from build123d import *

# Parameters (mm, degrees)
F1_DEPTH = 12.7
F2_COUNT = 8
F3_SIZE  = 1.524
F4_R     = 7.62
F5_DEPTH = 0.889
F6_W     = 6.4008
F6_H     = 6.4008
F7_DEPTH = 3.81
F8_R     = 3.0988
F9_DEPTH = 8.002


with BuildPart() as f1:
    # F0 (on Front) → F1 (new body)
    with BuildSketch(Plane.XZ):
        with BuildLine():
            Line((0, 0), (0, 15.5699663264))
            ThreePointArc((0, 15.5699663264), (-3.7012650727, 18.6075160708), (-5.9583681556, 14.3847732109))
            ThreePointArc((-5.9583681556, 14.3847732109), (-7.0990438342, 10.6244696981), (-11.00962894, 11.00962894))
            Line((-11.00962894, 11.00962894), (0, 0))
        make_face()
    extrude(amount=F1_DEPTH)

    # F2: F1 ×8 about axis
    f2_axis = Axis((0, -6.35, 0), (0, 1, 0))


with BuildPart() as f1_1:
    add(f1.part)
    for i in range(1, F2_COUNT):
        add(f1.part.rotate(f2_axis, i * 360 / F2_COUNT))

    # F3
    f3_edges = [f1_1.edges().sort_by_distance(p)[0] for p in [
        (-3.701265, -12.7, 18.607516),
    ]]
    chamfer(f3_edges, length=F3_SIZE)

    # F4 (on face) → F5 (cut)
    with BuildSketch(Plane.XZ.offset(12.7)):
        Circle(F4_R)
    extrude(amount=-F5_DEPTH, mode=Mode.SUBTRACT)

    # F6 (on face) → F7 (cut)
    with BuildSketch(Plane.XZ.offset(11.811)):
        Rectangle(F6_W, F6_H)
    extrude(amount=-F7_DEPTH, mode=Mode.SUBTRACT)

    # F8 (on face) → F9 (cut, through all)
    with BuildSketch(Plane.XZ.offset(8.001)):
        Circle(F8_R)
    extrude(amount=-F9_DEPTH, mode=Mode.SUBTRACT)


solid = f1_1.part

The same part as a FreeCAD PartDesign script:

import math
import FreeCAD as App
import Part
import Sketcher
from FreeCAD import Vector
Q = App.Units.Quantity


def edges_at(feature, points):
    """Names of the edges that pass closest to the given points."""
    edges = feature.Shape.Edges
    near = lambda p: min(range(len(edges)), key=lambda i: edges[i].distToShape(Part.Vertex(*p))[0])
    return sorted({f"Edge{near(p) + 1}" for p in points})


def add_polygon(sketch, points):
    """Adds a closed chain of lines whose ends are joined by coincident constraints."""
    first, n = sketch.GeometryCount, len(points)
    for a, b in zip(points, points[1:] + points[:1]):
        sketch.addGeometry(Part.LineSegment(App.Vector(*a, 0), App.Vector(*b, 0)), False)
    for i in range(n):
        sketch.addConstraint(Sketcher.Constraint("Coincident", first + i, 2, first + (i + 1) % n, 1))

doc = App.newDocument("Part")
body = doc.addObject("PartDesign::Body", "Body")

# Sketch on XZ plane
sketch1 = doc.addObject("Sketcher::SketchObject", "Sketch")
body.addObject(sketch1)
sketch1.AttachmentSupport = (doc.XZ_Plane, [""])
sketch1.MapMode = "FlatFace"
sketch1.addGeometry([
    Part.LineSegment(Vector(0, 0, 0), Vector(0, 15.569966, 0)),
    Part.ArcOfCircle(Part.Circle(Vector(-3.097059, 15.569966, 0), Vector(0, 0, 1), 3.097059), math.radians(0), math.radians(202.5)),
    Part.ArcOfCircle(Part.Circle(Vector(-8.819677, 13.19958, 0), Vector(0, 0, 1), 3.097059), math.radians(-135.000004), math.radians(22.5)),
    Part.LineSegment(Vector(-11.009629, 11.009629, 0), Vector(0, 0, 0)),
], False)
sketch1.addConstraint([
    Sketcher.Constraint("Tangent", 0, 2, 1, 1),
    Sketcher.Constraint("Tangent", 1, 2, 2, 2),
    Sketcher.Constraint("Tangent", 2, 1, 3, 1),
    Sketcher.Constraint("Coincident", 3, 2, 0, 1),
    Sketcher.Constraint("Vertical", 0),
    Sketcher.Constraint("Coincident", 3, 2, -1, 1),
    Sketcher.Constraint("Equal", 1, 2),
    Sketcher.Constraint("Angle", 3, Q("-45 deg")),
    Sketcher.Constraint("Radius", 1, Q("3.097059 mm")),
    Sketcher.Constraint("DistanceX", 2, 3, 1, 3, Q("0.2252999 in")),
])
pad1 = doc.addObject("PartDesign::Pad", "Pad")
body.addObject(pad1)
pad1.Profile = sketch1
pad1.Length = Q("0.5 in")
body2 = doc.addObject("PartDesign::Body", "Body001")
doc.recompute()

body2.BaseFeature = body
doc.recompute()

body3 = doc.addObject("PartDesign::Body", "Body002")
body3.BaseFeature = body
body3.Placement = App.Placement(Vector(0, 0, 0), App.Rotation(Vector(0, 1, 0), 45))
boolean = doc.addObject("PartDesign::Boolean", "Boolean")
body2.addObject(boolean)
boolean.Type = "Fuse"
boolean.addObjects([body3])
doc.recompute()

body4 = doc.addObject("PartDesign::Body", "Body003")
body4.BaseFeature = body
body4.Placement = App.Placement(Vector(0, 0, 0), App.Rotation(Vector(0, 1, 0), 90))
boolean2 = doc.addObject("PartDesign::Boolean", "Boolean001")
body2.addObject(boolean2)
boolean2.Type = "Fuse"
boolean2.addObjects([body4])
doc.recompute()

body5 = doc.addObject("PartDesign::Body", "Body004")
body5.BaseFeature = body
body5.Placement = App.Placement(Vector(0, 0, 0), App.Rotation(Vector(0, 1, 0), 135))
boolean3 = doc.addObject("PartDesign::Boolean", "Boolean002")
body2.addObject(boolean3)
boolean3.Type = "Fuse"
boolean3.addObjects([body5])
doc.recompute()

body6 = doc.addObject("PartDesign::Body", "Body005")
body6.BaseFeature = body
body6.Placement = App.Placement(Vector(0, 0, 0), App.Rotation(Vector(0, 1, 0), 180))
boolean4 = doc.addObject("PartDesign::Boolean", "Boolean003")
body2.addObject(boolean4)
boolean4.Type = "Fuse"
boolean4.addObjects([body6])
doc.recompute()

body7 = doc.addObject("PartDesign::Body", "Body006")
body7.BaseFeature = body
body7.Placement = App.Placement(Vector(0, 0, 0), App.Rotation(Vector(0, 1, 0), 225))
boolean5 = doc.addObject("PartDesign::Boolean", "Boolean004")
body2.addObject(boolean5)
boolean5.Type = "Fuse"
boolean5.addObjects([body7])
doc.recompute()

body8 = doc.addObject("PartDesign::Body", "Body007")
body8.BaseFeature = body
body8.Placement = App.Placement(Vector(0, 0, 0), App.Rotation(Vector(0, 1, 0), 270))
boolean6 = doc.addObject("PartDesign::Boolean", "Boolean005")
body2.addObject(boolean6)
boolean6.Type = "Fuse"
boolean6.addObjects([body8])
doc.recompute()

body.Placement = App.Placement(Vector(0, 0, 0), App.Rotation(Vector(0, 1, 0), 315))
boolean7 = doc.addObject("PartDesign::Boolean", "Boolean006")
body2.addObject(boolean7)
boolean7.Type = "Fuse"
boolean7.addObjects([body])
doc.recompute()

chamfer = doc.addObject("PartDesign::Chamfer", "Chamfer")
body2.addObject(chamfer)
chamfer.Base = (boolean7, edges_at(boolean7, [(-3.701, -12.7, 18.608)]))
chamfer.Size = Q("0.06 in")

# Sketch on XZ plane
sketch2 = doc.addObject("Sketcher::SketchObject", "Sketch001")
body2.addObject(sketch2)
sketch2.AttachmentSupport = (doc.getObject("XZ_Plane001"), [""])
sketch2.MapMode = "FlatFace"
sketch2.AttachmentOffset = App.Placement(Vector(0, 0, 0.5 * 25.4), App.Rotation())
sketch2.addGeometry(Part.Circle(Vector(0, 0, 0), Vector(0, 0, 1), 7.62), False)
sketch2.addConstraint([
    Sketcher.Constraint("Coincident", 0, 3, -1, 1),
    Sketcher.Constraint("Diameter", 0, Q("0.6 in")),
])
pocket1 = doc.addObject("PartDesign::Pocket", "Pocket")
body2.addObject(pocket1)
pocket1.Profile = sketch2
pocket1.Length = Q("0.035 in")

# Sketch on XZ plane
sketch3 = doc.addObject("Sketcher::SketchObject", "Sketch002")
body2.addObject(sketch3)
sketch3.AttachmentSupport = (doc.getObject("XZ_Plane001"), [""])
sketch3.MapMode = "FlatFace"
sketch3.AttachmentOffset = App.Placement(Vector(0, 0, 0.465 * 25.4), App.Rotation())
add_polygon(sketch3, [(-3.2004, 3.2004), (-3.2004, -3.2004), (3.2004, -3.2004), (3.2004, 3.2004)])  # lines 0-3
sketch3.addConstraint([
    Sketcher.Constraint("Vertical", 0),
    Sketcher.Constraint("Horizontal", 1),
    Sketcher.Constraint("Vertical", 2),
    Sketcher.Constraint("Horizontal", 3),
    Sketcher.Constraint("Symmetric", 0, 2, 2, 2, -1, 1),
    Sketcher.Constraint("Equal", 3, 0),
    Sketcher.Constraint("DistanceX", 1, 1, 1, 2, Q("0.252 in")),
])
pocket2 = doc.addObject("PartDesign::Pocket", "Pocket001")
body2.addObject(pocket2)
pocket2.Profile = sketch3
pocket2.Length = Q("0.15 in")

# Sketch on XZ plane
sketch4 = doc.addObject("Sketcher::SketchObject", "Sketch003")
body2.addObject(sketch4)
sketch4.AttachmentSupport = (doc.getObject("XZ_Plane001"), [""])
sketch4.MapMode = "FlatFace"
sketch4.AttachmentOffset = App.Placement(Vector(0, 0, 0.315 * 25.4), App.Rotation())
sketch4.addGeometry(Part.Circle(Vector(0, 0, 0), Vector(0, 0, 1), 3.0988), False)
sketch4.addConstraint([
    Sketcher.Constraint("Coincident", 0, 3, -1, 1),
    Sketcher.Constraint("Diameter", 0, Q("0.244 in")),
])
pocket3 = doc.addObject("PartDesign::Pocket", "Pocket002")
body2.addObject(pocket3)
pocket3.Profile = sketch4
pocket3.Type = "ThroughAll"

doc.recompute()
